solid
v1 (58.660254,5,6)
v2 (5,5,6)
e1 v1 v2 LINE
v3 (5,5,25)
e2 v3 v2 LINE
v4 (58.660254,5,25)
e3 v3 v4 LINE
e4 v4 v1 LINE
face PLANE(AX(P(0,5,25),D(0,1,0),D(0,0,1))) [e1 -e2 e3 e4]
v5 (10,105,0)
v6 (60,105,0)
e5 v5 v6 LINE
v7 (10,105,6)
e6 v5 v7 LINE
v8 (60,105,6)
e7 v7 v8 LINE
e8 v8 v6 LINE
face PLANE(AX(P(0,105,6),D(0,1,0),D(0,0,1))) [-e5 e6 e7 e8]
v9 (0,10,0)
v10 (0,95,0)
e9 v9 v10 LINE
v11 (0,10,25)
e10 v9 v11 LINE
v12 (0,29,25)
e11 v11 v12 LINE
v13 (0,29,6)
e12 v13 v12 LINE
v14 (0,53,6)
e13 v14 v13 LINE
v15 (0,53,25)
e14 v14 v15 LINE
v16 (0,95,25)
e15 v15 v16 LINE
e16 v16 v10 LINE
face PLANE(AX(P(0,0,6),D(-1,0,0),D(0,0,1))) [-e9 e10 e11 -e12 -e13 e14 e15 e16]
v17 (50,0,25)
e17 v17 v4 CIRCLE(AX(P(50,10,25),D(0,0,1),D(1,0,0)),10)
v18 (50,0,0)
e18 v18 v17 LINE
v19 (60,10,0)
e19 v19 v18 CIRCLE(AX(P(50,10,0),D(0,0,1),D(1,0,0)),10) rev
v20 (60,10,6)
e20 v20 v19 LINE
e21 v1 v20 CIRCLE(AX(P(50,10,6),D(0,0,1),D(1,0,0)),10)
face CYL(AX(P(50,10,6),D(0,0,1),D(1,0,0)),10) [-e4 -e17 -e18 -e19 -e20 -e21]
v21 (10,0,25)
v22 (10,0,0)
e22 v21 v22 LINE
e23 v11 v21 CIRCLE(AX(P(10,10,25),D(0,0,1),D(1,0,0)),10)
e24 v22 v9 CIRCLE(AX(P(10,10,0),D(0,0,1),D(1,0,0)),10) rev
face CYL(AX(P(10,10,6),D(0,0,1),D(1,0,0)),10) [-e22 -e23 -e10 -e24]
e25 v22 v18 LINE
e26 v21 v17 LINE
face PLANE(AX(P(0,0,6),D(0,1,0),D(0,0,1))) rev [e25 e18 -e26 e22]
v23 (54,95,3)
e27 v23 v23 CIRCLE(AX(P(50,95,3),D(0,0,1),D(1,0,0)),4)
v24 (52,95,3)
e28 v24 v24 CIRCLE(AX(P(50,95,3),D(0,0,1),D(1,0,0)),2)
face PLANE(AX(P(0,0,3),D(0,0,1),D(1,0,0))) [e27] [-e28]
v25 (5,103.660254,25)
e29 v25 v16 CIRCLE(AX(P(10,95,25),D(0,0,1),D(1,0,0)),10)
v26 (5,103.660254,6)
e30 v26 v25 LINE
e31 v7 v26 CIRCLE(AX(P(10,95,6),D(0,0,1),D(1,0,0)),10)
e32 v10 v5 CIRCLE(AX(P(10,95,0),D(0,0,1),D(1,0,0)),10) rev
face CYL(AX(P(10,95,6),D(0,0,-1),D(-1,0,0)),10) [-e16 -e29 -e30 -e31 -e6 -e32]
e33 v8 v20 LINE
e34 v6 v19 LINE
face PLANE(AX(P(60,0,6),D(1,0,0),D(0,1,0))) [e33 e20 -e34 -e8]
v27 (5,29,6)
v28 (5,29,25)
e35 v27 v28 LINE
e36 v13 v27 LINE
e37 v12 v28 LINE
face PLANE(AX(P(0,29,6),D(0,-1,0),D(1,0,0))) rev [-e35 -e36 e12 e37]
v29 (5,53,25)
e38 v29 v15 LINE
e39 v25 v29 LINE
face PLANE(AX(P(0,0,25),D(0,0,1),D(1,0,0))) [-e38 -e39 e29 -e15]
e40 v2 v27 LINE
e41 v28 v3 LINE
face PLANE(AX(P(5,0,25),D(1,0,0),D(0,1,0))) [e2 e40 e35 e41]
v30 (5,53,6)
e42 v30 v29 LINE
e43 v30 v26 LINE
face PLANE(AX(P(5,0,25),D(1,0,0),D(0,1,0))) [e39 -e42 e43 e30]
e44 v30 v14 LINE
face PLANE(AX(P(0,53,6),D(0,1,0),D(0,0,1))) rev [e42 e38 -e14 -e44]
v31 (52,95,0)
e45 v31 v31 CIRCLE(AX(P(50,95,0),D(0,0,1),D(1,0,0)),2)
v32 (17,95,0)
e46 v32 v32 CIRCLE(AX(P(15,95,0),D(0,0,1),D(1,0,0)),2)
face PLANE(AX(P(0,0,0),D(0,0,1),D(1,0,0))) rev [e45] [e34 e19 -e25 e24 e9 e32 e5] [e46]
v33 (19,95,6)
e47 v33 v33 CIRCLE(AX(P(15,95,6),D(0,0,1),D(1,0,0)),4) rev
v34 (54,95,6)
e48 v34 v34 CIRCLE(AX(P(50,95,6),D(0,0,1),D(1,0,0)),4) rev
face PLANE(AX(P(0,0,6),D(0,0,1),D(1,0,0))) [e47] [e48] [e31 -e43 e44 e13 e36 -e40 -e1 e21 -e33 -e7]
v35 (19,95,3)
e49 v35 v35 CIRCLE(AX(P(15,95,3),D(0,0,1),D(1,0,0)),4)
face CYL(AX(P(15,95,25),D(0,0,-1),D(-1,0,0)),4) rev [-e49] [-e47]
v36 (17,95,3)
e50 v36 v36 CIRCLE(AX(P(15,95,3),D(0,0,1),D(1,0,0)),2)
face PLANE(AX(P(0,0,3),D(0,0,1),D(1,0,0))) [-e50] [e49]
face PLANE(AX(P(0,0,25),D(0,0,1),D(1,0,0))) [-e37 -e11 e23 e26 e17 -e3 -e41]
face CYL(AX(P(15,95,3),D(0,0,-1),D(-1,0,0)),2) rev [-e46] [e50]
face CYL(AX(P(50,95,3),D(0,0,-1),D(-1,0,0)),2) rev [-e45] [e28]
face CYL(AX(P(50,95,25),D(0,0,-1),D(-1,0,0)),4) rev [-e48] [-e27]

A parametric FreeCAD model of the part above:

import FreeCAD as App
import Part
import Sketcher
Q = App.Units.Quantity


def edges_at(feature, points):
    """Names of the edges that pass closest to the given points."""
    edges = feature.Shape.Edges
    near = lambda p: min(range(len(edges)), key=lambda i: edges[i].distToShape(Part.Vertex(*p))[0])
    return sorted({f"Edge{near(p) + 1}" for p in points})


def add_polygon(sketch, points):
    """Adds a closed chain of lines whose ends are joined by coincident constraints."""
    first, n = sketch.GeometryCount, len(points)
    for a, b in zip(points, points[1:] + points[:1]):
        sketch.addGeometry(Part.LineSegment(App.Vector(*a, 0), App.Vector(*b, 0)), False)
    for i in range(n):
        sketch.addConstraint(Sketcher.Constraint("Coincident", first + i, 2, first + (i + 1) % n, 1))

doc = App.newDocument("Part")
params = doc.addObject("Spreadsheet::Sheet", "Params")
for row, (alias, value) in enumerate([
    ("sketch1_width", "60 mm"),
    ("sketch1_height", "105 mm"),
    ("pad1_length", "6 mm"),
    ("sketch2_width", "5 mm"),
    ("sketch2_width2", "60 mm"),
    ("sketch2_height", "100 mm"),
    ("pad2_length", "25 mm"),
    ("sketch3_diameter", "4 mm"),
    ("pocket1_length", "25 mm"),
    ("sketch4_diameter", "8 mm"),
    ("sketch4_diameter2", "4 mm"),
    ("pocket2_length", "25 mm"),
    ("sketch5_diameter", "8 mm"),
    ("sketch5_diameter2", "4 mm"),
    ("pad3_length", "3 mm"),
    ("fillet_radius", "10 mm"),
    ("sketch6_width", "5 mm"),
    ("sketch6_height", "24 mm"),
    ("pocket3_length", "19 mm"),
], start=1):
    params.set(f"A{row}", alias)
    params.set(f"B{row}", "=" + value)
    params.setAlias(f"B{row}", alias)

body = doc.addObject("PartDesign::Body", "Body")

sketch1 = doc.addObject("Sketcher::SketchObject", "Sketch")
body.addObject(sketch1)
sketch1.AttachmentSupport = (doc.XY_Plane, [""])
sketch1.MapMode = "FlatFace"
add_polygon(sketch1, [(0, 105), (0, 0), (60, 0), (60, 105)])
sketch1.addConstraint(Sketcher.Constraint("Vertical", 0))
sketch1.addConstraint(Sketcher.Constraint("Horizontal", 1))
sketch1.addConstraint(Sketcher.Constraint("Vertical", 2))
sketch1.addConstraint(Sketcher.Constraint("Horizontal", 3))
sketch1.addConstraint(Sketcher.Constraint("Coincident", 0, 2, -1, 1))
sketch1.addConstraint(Sketcher.Constraint("DistanceX", 1, 1, 1, 2, Q("60 mm")))
sketch1.addConstraint(Sketcher.Constraint("DistanceY", 0, 2, 0, 1, Q("105 mm")))
sketch1.setExpression("Constraints[9]", "Params.sketch1_width")
sketch1.setExpression("Constraints[10]", "Params.sketch1_height")
pad1 = doc.addObject("PartDesign::Pad", "Pad")
body.addObject(pad1)
pad1.Profile = sketch1
pad1.setExpression("Length", "Params.pad1_length")

sketch2 = doc.addObject("Sketcher::SketchObject", "Sketch001")
body.addObject(sketch2)
sketch2.AttachmentSupport = (doc.XY_Plane, [""])
sketch2.MapMode = "FlatFace"
add_polygon(sketch2, [(5, 5), (5, 105), (0, 105), (0, 0), (60, 0), (60, 5)])
sketch2.addConstraint(Sketcher.Constraint("Vertical", 0))
sketch2.addConstraint(Sketcher.Constraint("Horizontal", 1))
sketch2.addConstraint(Sketcher.Constraint("Vertical", 2))
sketch2.addConstraint(Sketcher.Constraint("Horizontal", 3))
sketch2.addConstraint(Sketcher.Constraint("Vertical", 4))
sketch2.addConstraint(Sketcher.Constraint("Horizontal", 5))
sketch2.addConstraint(Sketcher.Constraint("Coincident", 2, 2, -1, 1))
sketch2.addConstraint(Sketcher.Constraint("Equal", 1, 4))
sketch2.addConstraint(Sketcher.Constraint("DistanceX", 1, 2, 1, 1, Q("5 mm")))
sketch2.addConstraint(Sketcher.Constraint("DistanceX", 3, 1, 3, 2, Q("60 mm")))
sketch2.addConstraint(Sketcher.Constraint("DistanceY", 0, 1, 0, 2, Q("100 mm")))
sketch2.setExpression("Constraints[14]", "Params.sketch2_width")
sketch2.setExpression("Constraints[15]", "Params.sketch2_width2")
sketch2.setExpression("Constraints[16]", "Params.sketch2_height")
pad2 = doc.addObject("PartDesign::Pad", "Pad001")
body.addObject(pad2)
pad2.Profile = sketch2
pad2.setExpression("Length", "Params.pad2_length")

sketch3 = doc.addObject("Sketcher::SketchObject", "Sketch002")
body.addObject(sketch3)
sketch3.AttachmentSupport = (doc.XY_Plane, [""])
sketch3.MapMode = "FlatFace"
sketch3.addGeometry(Part.Circle(App.Vector(50, 95, 0), App.Vector(0, 0, 1), 2), False)
sketch3.addGeometry(Part.Circle(App.Vector(15, 95, 0), App.Vector(0, 0, 1), 2), False)
sketch3.addConstraint(Sketcher.Constraint("Equal", 0, 1))
sketch3.addConstraint(Sketcher.Constraint("Horizontal", 0, 3, 1, 3))
sketch3.addConstraint(Sketcher.Constraint("Diameter", 0, Q("4 mm")))
sketch3.addConstraint(Sketcher.Constraint("DistanceX", -1, 1, 0, 3, Q("50 mm")))
sketch3.addConstraint(Sketcher.Constraint("DistanceY", -1, 1, 0, 3, Q("95 mm")))
sketch3.addConstraint(Sketcher.Constraint("DistanceX", -1, 1, 1, 3, Q("15 mm")))
sketch3.setExpression("Constraints[2]", "Params.sketch3_diameter")
pocket1 = doc.addObject("PartDesign::Pocket", "Pocket")
body.addObject(pocket1)
pocket1.Profile = sketch3
pocket1.setExpression("Length", "Params.pocket1_length")
pocket1.Reversed = True

sketch4 = doc.addObject("Sketcher::SketchObject", "Sketch003")
body.addObject(sketch4)
sketch4.AttachmentSupport = (doc.XY_Plane, [""])
sketch4.MapMode = "FlatFace"
sketch4.addGeometry(Part.Circle(App.Vector(50, 95, 0), App.Vector(0, 0, 1), 4), False)
sketch4.addGeometry(Part.Circle(App.Vector(50, 95, 0), App.Vector(0, 0, 1), 2), False)
sketch4.addGeometry(Part.Circle(App.Vector(15, 95, 0), App.Vector(0, 0, 1), 4), False)
sketch4.addGeometry(Part.Circle(App.Vector(15, 95, 0), App.Vector(0, 0, 1), 2), False)
sketch4.addConstraint(Sketcher.Constraint("Coincident", 1, 3, 0, 3))
sketch4.addConstraint(Sketcher.Constraint("Coincident", 3, 3, 2, 3))
sketch4.addConstraint(Sketcher.Constraint("Equal", 0, 2))
sketch4.addConstraint(Sketcher.Constraint("Equal", 1, 3))
sketch4.addConstraint(Sketcher.Constraint("Horizontal", 1, 3, 2, 3))
sketch4.addConstraint(Sketcher.Constraint("Diameter", 0, Q("8 mm")))
sketch4.addConstraint(Sketcher.Constraint("Diameter", 1, Q("4 mm")))
sketch4.addConstraint(Sketcher.Constraint("DistanceX", -1, 1, 0, 3, Q("50 mm")))
sketch4.addConstraint(Sketcher.Constraint("DistanceY", -1, 1, 0, 3, Q("95 mm")))
sketch4.addConstraint(Sketcher.Constraint("DistanceX", -1, 1, 2, 3, Q("15 mm")))
sketch4.setExpression("Constraints[5]", "Params.sketch4_diameter")
sketch4.setExpression("Constraints[6]", "Params.sketch4_diameter2")
pocket2 = doc.addObject("PartDesign::Pocket", "Pocket001")
body.addObject(pocket2)
pocket2.Profile = sketch4
pocket2.setExpression("Length", "Params.pocket2_length")
pocket2.Reversed = True

sketch5 = doc.addObject("Sketcher::SketchObject", "Sketch004")
body.addObject(sketch5)
sketch5.AttachmentSupport = (doc.XY_Plane, [""])
sketch5.MapMode = "FlatFace"
sketch5.addGeometry(Part.Circle(App.Vector(50, 95, 0), App.Vector(0, 0, 1), 4), False)
sketch5.addGeometry(Part.Circle(App.Vector(50, 95, 0), App.Vector(0, 0, 1), 2), False)
sketch5.addGeometry(Part.Circle(App.Vector(15, 95, 0), App.Vector(0, 0, 1), 4), False)
sketch5.addGeometry(Part.Circle(App.Vector(15, 95, 0), App.Vector(0, 0, 1), 2), False)
sketch5.addConstraint(Sketcher.Constraint("Coincident", 1, 3, 0, 3))
sketch5.addConstraint(Sketcher.Constraint("Coincident", 3, 3, 2, 3))
sketch5.addConstraint(Sketcher.Constraint("Equal", 0, 2))
sketch5.addConstraint(Sketcher.Constraint("Equal", 1, 3))
sketch5.addConstraint(Sketcher.Constraint("Horizontal", 1, 3, 2, 3))
sketch5.addConstraint(Sketcher.Constraint("Diameter", 0, Q("8 mm")))
sketch5.addConstraint(Sketcher.Constraint("Diameter", 1, Q("4 mm")))
sketch5.addConstraint(Sketcher.Constraint("DistanceX", -1, 1, 0, 3, Q("50 mm")))
sketch5.addConstraint(Sketcher.Constraint("DistanceY", -1, 1, 0, 3, Q("95 mm")))
sketch5.addConstraint(Sketcher.Constraint("DistanceX", -1, 1, 2, 3, Q("15 mm")))
sketch5.setExpression("Constraints[5]", "Params.sketch5_diameter")
sketch5.setExpression("Constraints[6]", "Params.sketch5_diameter2")
pad3 = doc.addObject("PartDesign::Pad", "Pad002")
body.addObject(pad3)
pad3.Profile = sketch5
pad3.setExpression("Length", "Params.pad3_length")
doc.recompute()

fillet = doc.addObject("PartDesign::Fillet", "Fillet")
body.addObject(fillet)
fillet.Base = (pad3, edges_at(pad3, [(60, 0, 12.5), (0, 105, 12.5), (0, 0, 12.5)]))
fillet.setExpression("Radius", "Params.fillet_radius")

sketch6 = doc.addObject("Sketcher::SketchObject", "Sketch005")
body.addObject(sketch6)
sketch6.AttachmentSupport = (doc.XY_Plane, [""])
sketch6.MapMode = "FlatFace"
sketch6.AttachmentOffset = App.Placement(App.Vector(0, 0, 25), App.Rotation())
add_polygon(sketch6, [(0, 53), (0, 29), (5, 29), (5, 53)])
sketch6.addConstraint(Sketcher.Constraint("Vertical", 0))
sketch6.addConstraint(Sketcher.Constraint("Horizontal", 1))
sketch6.addConstraint(Sketcher.Constraint("Vertical", 2))
sketch6.addConstraint(Sketcher.Constraint("Horizontal", 3))
sketch6.addConstraint(Sketcher.Constraint("PointOnObject", 0, 2, -2))
sketch6.addConstraint(Sketcher.Constraint("DistanceX", 1, 1, 1, 2, Q("5 mm")))
sketch6.addConstraint(Sketcher.Constraint("DistanceY", 0, 2, 0, 1, Q("24 mm")))
sketch6.addConstraint(Sketcher.Constraint("DistanceY", -1, 1, 0, 2, Q("29 mm")))
sketch6.setExpression("Constraints[9]", "Params.sketch6_width")
sketch6.setExpression("Constraints[10]", "Params.sketch6_height")
pocket3 = doc.addObject("PartDesign::Pocket", "Pocket002")
body.addObject(pocket3)
pocket3.Profile = sketch6
pocket3.setExpression("Length", "Params.pocket3_length")

doc.recompute()
